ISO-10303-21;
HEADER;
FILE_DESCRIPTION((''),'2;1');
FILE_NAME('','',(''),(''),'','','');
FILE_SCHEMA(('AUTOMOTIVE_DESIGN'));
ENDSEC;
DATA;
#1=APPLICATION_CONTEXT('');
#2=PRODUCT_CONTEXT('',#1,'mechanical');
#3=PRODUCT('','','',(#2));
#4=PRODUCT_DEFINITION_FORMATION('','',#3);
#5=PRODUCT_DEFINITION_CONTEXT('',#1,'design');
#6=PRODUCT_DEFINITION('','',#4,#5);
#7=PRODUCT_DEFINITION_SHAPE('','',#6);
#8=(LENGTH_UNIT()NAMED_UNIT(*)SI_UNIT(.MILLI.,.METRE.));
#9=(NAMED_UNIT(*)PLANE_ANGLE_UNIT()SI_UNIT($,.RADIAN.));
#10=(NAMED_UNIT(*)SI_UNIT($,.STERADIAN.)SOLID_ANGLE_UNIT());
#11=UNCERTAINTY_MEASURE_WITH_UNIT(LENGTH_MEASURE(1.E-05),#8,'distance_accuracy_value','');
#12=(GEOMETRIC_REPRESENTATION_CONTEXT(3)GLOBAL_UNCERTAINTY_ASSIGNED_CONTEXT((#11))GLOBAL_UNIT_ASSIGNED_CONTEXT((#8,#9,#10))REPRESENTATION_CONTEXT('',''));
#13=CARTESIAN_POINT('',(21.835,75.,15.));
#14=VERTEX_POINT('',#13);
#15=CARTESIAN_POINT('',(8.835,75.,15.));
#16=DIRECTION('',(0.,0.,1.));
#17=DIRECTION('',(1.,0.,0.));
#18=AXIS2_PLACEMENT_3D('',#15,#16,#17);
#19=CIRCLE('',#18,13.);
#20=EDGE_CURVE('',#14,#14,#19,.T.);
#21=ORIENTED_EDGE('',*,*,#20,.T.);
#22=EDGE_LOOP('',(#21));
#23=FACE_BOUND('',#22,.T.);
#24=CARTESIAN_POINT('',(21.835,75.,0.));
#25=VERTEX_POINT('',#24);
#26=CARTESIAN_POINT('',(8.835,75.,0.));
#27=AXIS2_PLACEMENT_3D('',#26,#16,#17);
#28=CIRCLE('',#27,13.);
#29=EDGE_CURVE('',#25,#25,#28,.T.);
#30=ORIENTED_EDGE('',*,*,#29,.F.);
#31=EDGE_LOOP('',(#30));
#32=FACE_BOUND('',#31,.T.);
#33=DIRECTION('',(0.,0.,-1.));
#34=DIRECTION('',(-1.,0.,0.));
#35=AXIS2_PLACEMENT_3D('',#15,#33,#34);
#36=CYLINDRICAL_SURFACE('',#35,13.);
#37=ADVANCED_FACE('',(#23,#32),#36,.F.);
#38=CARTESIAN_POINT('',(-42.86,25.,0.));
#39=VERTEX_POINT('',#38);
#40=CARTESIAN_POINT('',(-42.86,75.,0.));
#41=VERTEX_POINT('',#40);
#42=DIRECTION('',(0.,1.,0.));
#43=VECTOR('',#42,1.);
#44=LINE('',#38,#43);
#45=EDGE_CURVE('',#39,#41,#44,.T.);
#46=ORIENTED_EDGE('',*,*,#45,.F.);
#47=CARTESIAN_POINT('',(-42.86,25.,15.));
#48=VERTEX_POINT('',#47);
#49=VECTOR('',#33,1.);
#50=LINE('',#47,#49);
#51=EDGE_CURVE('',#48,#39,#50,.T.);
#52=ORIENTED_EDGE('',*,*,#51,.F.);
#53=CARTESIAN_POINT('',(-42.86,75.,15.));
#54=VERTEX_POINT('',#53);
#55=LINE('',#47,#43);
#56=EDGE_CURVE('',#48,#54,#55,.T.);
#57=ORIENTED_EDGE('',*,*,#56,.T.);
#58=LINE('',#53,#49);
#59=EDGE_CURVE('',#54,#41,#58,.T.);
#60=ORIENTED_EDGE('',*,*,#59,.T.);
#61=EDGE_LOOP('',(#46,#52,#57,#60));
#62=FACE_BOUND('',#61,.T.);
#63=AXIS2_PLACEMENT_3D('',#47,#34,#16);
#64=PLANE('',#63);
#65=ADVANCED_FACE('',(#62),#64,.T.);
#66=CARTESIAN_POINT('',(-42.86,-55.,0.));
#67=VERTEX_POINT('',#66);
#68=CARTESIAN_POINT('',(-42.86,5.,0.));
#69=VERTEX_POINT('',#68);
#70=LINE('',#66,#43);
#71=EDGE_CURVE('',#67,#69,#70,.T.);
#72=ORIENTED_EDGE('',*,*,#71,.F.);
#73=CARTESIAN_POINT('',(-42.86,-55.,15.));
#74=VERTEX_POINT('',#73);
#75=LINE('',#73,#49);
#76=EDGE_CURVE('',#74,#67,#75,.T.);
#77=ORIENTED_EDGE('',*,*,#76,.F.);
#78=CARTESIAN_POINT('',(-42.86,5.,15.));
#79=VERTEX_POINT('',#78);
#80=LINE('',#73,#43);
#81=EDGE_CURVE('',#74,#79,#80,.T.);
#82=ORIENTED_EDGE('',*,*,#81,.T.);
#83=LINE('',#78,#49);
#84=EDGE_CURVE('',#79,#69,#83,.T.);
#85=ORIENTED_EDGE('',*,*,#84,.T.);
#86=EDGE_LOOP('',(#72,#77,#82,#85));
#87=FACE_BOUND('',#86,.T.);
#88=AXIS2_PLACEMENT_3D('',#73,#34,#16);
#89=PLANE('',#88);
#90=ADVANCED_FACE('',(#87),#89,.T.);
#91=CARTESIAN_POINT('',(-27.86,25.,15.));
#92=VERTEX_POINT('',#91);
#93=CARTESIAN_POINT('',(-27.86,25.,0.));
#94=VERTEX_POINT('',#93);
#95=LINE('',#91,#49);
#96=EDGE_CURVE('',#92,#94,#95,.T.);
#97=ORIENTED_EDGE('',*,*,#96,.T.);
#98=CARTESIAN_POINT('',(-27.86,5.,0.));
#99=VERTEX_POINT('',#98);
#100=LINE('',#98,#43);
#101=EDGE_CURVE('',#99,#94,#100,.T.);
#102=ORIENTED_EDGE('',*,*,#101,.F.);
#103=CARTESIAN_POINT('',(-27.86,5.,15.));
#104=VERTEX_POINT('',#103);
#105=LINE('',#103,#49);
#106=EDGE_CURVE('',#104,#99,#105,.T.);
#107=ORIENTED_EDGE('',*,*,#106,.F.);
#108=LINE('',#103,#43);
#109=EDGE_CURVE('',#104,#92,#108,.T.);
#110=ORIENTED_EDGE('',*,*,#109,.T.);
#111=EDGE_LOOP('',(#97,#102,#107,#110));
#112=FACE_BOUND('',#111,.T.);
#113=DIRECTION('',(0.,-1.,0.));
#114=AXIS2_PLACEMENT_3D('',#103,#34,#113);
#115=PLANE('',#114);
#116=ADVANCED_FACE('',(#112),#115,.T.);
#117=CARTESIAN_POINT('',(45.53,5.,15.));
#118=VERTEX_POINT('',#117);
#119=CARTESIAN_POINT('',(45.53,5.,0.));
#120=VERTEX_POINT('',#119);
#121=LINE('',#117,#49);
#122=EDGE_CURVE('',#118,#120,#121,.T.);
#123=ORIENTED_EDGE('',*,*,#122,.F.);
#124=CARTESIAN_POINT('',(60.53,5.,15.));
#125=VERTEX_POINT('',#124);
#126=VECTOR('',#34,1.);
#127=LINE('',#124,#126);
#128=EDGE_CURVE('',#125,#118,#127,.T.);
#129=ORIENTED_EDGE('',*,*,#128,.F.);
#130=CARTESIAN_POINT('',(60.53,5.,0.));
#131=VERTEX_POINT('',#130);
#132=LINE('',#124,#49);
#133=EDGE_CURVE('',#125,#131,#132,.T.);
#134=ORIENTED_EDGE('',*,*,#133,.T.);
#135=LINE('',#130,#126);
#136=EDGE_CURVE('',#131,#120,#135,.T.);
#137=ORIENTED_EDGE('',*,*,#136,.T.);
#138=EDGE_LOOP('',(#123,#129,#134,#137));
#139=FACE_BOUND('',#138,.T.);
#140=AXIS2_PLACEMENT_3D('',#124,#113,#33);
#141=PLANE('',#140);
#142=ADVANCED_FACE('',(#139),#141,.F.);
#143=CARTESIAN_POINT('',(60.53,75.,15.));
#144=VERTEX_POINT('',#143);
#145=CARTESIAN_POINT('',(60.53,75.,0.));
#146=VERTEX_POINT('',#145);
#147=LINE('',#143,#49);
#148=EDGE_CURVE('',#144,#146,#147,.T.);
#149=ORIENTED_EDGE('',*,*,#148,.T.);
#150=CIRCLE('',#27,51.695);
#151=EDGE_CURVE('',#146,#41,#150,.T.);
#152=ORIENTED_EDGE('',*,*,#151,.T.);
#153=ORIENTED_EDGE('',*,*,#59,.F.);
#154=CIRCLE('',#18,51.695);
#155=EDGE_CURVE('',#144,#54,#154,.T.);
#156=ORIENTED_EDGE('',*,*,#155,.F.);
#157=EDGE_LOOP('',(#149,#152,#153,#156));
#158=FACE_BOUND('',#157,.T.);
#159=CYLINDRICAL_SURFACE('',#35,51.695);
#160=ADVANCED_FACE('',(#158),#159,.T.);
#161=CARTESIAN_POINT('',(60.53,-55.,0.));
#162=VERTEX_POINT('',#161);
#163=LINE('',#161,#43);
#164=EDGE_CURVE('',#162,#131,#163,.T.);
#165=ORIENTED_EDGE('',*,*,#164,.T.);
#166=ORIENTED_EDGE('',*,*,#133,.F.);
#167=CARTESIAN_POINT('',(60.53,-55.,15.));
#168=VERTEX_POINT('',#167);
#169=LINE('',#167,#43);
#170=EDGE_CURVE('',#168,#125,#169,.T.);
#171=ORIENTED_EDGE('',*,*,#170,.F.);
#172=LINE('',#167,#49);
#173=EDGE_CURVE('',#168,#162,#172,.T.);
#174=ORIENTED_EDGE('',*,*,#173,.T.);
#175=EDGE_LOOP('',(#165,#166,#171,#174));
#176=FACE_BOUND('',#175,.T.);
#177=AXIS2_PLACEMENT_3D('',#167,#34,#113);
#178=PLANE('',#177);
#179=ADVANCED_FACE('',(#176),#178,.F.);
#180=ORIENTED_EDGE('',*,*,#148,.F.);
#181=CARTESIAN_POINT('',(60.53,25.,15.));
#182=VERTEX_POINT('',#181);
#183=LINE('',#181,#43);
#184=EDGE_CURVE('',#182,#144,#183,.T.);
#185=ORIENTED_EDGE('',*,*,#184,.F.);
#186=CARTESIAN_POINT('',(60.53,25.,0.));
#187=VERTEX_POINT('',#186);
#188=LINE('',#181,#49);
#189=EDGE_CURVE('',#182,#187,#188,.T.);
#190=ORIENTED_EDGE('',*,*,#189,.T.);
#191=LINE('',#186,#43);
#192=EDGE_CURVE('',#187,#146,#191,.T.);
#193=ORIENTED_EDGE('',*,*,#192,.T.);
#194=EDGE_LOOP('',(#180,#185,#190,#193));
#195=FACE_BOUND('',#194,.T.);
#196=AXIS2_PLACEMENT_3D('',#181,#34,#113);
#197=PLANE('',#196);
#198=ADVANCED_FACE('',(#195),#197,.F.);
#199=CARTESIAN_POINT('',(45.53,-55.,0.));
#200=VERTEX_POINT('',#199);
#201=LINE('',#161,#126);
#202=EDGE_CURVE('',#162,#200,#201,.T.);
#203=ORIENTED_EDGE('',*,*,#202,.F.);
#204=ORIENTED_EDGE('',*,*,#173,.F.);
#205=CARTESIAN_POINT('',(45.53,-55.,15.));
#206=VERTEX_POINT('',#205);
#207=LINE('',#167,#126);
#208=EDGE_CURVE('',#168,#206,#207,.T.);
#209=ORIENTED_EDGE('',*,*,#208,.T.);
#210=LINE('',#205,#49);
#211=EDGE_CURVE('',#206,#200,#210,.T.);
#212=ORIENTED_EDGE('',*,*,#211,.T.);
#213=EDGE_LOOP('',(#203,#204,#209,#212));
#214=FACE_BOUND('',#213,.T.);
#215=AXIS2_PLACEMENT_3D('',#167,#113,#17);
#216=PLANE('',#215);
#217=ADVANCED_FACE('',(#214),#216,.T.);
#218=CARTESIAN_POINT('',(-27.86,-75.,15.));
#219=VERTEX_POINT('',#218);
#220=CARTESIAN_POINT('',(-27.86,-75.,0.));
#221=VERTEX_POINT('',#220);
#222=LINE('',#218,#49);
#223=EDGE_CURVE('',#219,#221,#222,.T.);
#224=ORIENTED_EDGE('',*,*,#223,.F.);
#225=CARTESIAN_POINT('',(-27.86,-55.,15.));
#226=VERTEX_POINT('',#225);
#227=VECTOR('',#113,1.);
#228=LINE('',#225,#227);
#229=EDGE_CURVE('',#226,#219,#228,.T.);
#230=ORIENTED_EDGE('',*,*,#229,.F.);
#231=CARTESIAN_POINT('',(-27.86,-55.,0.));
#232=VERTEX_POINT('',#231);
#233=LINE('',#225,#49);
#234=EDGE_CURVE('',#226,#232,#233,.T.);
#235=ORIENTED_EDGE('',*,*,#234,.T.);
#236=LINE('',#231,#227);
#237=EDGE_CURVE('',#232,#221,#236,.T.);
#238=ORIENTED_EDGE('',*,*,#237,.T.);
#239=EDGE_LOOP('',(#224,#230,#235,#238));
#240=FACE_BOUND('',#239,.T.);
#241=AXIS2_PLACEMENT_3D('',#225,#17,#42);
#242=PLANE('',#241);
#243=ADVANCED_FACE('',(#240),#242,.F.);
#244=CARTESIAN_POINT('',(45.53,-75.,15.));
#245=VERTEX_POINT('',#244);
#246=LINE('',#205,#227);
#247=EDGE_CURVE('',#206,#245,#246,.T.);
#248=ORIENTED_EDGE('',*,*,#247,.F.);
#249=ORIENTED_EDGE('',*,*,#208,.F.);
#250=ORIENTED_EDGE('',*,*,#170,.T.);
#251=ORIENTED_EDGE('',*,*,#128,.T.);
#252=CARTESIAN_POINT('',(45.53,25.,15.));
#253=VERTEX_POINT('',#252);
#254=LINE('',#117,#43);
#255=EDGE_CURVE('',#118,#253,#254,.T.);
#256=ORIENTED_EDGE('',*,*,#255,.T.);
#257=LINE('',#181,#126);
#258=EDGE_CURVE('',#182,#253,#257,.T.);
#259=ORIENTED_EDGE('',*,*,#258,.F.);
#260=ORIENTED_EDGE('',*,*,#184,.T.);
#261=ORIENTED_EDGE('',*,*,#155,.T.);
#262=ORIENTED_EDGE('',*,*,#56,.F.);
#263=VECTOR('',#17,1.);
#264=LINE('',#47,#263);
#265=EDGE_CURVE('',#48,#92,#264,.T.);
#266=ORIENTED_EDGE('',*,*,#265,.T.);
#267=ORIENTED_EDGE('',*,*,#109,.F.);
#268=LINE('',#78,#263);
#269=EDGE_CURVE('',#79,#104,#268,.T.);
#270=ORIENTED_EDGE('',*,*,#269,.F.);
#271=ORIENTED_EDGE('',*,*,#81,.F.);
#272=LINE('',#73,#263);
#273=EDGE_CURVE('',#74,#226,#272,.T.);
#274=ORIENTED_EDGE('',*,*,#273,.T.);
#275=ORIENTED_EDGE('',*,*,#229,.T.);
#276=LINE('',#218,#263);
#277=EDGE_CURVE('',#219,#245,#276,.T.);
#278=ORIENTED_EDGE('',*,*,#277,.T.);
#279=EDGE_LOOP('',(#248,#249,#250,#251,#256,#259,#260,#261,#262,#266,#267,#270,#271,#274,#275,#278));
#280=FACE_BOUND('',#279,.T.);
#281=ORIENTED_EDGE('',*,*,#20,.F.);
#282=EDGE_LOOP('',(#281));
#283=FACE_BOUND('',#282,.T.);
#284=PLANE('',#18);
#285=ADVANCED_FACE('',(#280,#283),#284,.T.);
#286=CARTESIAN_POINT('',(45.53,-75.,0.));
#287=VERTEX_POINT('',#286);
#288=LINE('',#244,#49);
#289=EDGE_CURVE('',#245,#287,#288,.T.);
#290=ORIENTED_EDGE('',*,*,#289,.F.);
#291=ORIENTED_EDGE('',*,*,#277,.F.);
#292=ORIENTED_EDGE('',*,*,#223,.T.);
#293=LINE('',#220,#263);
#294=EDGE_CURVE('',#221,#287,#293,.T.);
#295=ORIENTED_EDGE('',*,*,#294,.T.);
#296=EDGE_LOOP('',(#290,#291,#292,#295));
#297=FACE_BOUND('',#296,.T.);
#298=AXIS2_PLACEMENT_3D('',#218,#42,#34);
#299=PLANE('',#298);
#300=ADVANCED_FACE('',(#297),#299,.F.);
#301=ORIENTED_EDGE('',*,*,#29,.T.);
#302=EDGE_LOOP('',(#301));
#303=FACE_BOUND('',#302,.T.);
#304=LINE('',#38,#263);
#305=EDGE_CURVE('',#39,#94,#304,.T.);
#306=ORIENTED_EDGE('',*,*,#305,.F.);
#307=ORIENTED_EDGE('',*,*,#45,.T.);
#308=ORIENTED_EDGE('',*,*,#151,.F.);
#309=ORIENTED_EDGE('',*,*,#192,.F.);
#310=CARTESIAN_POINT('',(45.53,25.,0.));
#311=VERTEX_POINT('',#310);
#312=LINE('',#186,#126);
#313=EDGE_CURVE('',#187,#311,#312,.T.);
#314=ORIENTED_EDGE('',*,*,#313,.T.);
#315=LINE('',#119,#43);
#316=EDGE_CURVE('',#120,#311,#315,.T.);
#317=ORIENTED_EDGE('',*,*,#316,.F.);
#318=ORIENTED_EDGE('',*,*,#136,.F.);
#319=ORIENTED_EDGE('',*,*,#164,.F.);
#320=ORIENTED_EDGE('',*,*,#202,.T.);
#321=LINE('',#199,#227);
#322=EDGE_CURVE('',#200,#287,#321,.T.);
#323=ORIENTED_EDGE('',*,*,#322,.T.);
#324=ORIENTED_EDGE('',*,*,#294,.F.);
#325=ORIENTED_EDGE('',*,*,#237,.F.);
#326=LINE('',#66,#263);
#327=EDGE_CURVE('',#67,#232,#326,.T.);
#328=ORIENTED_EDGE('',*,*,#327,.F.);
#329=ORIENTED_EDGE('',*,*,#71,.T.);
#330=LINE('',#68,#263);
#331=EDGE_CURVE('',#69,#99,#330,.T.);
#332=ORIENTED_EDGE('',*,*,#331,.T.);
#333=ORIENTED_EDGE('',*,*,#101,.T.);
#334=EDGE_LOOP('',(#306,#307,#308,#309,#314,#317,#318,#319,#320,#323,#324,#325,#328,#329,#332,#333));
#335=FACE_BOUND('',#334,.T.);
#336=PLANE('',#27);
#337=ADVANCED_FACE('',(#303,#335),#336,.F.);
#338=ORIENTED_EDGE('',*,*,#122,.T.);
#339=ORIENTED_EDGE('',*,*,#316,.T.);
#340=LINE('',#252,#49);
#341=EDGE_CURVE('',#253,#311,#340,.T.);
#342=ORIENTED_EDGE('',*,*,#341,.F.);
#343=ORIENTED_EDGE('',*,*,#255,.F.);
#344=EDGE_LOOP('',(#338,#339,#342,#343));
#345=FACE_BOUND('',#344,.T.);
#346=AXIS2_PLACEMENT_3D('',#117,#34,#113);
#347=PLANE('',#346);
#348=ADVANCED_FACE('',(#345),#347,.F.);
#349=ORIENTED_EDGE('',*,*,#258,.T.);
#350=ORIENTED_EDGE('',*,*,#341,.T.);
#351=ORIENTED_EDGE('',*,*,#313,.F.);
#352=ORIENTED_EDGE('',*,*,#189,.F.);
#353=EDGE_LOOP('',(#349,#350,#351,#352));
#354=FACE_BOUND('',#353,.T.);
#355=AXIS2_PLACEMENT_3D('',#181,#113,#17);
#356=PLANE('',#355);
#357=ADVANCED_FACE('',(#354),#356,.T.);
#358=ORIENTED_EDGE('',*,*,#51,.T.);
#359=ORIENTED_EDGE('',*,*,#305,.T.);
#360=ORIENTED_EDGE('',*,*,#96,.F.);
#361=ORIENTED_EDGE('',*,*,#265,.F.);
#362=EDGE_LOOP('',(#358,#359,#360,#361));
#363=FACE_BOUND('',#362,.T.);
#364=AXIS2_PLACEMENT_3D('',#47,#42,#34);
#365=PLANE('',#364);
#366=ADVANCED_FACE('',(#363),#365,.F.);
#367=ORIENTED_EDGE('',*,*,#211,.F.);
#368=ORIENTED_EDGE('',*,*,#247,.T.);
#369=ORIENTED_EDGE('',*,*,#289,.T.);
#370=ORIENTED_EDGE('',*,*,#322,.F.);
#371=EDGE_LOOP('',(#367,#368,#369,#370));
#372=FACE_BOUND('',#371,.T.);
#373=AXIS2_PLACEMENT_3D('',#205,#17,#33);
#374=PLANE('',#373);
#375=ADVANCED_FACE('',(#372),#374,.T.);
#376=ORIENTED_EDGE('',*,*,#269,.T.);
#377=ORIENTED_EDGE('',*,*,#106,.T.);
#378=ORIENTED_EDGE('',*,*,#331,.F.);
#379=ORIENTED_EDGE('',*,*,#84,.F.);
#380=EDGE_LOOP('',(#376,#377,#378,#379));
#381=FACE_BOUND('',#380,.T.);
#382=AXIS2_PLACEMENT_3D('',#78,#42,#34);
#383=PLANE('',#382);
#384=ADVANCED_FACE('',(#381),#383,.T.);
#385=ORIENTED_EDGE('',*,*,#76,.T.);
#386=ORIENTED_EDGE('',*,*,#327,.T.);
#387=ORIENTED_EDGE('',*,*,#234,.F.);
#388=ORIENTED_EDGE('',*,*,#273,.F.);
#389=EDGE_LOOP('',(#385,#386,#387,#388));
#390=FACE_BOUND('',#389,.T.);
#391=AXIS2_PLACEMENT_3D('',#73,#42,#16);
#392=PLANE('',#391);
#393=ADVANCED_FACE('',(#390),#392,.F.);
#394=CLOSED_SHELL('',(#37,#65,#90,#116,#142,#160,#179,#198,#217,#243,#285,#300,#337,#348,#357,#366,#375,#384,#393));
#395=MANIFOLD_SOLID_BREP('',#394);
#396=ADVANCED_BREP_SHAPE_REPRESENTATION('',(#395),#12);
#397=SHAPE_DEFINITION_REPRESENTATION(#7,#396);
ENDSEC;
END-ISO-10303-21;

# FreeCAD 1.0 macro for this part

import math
import FreeCAD as App
import Part
import Sketcher
Q = App.Units.Quantity

doc = App.newDocument("Part")
params = doc.addObject("Spreadsheet::Sheet", "Params")
for row, (alias, value) in enumerate([
    ("sketch1_diameter", "26 mm"),
    ("sketch1_width", "15 mm"),
    ("sketch1_height", "20 mm"),
    ("sketch1_height2", "60 mm"),
    ("sketch1_height3", "50 mm"),
    ("pad1_length", "15 mm"),
], start=1):
    params.set(f"A{row}", alias)
    params.set(f"B{row}", "=" + value)
    params.setAlias(f"B{row}", alias)

body = doc.addObject("PartDesign::Body", "Body")

# Sketch on XY plane
sketch1 = doc.addObject("Sketcher::SketchObject", "Sketch")
body.addObject(sketch1)
sketch1.AttachmentSupport = (doc.XY_Plane, [""])
sketch1.MapMode = "FlatFace"
sketch1.addGeometry(Part.LineSegment(App.Vector(-28, -55, 0), App.Vector(-28, -75, 0)), False)
sketch1.addGeometry(Part.LineSegment(App.Vector(-28, -75, 0), App.Vector(46, -75, 0)), False)
sketch1.addGeometry(Part.LineSegment(App.Vector(46, -75, 0), App.Vector(46, -55, 0)), False)
sketch1.addGeometry(Part.LineSegment(App.Vector(46, -55, 0), App.Vector(61, -55, 0)), False)
sketch1.addGeometry(Part.LineSegment(App.Vector(61, -55, 0), App.Vector(61, 5, 0)), False)
sketch1.addGeometry(Part.LineSegment(App.Vector(61, 5, 0), App.Vector(46, 5, 0)), False)
sketch1.addGeometry(Part.LineSegment(App.Vector(46, 5, 0), App.Vector(46, 25, 0)), False)
sketch1.addGeometry(Part.LineSegment(App.Vector(46, 25, 0), App.Vector(61, 25, 0)), False)
sketch1.addGeometry(Part.LineSegment(App.Vector(61, 25, 0), App.Vector(61, 75, 0)), False)
sketch1.addGeometry(Part.ArcOfCircle(Part.Circle(App.Vector(9, 75, 0), App.Vector(0, 0, 1), 52), math.radians(0), math.radians(180)), False)
sketch1.addGeometry(Part.LineSegment(App.Vector(-43, 75, 0), App.Vector(-43, 25, 0)), False)
sketch1.addGeometry(Part.LineSegment(App.Vector(-43, 25, 0), App.Vector(-28, 25, 0)), False)
sketch1.addGeometry(Part.LineSegment(App.Vector(-28, 25, 0), App.Vector(-28, 5, 0)), False)
sketch1.addGeometry(Part.LineSegment(App.Vector(-28, 5, 0), App.Vector(-43, 5, 0)), False)
sketch1.addGeometry(Part.LineSegment(App.Vector(-43, 5, 0), App.Vector(-43, -55, 0)), False)
sketch1.addGeometry(Part.LineSegment(App.Vector(-43, -55, 0), App.Vector(-28, -55, 0)), False)
sketch1.addGeometry(Part.Circle(App.Vector(9, 75, 0), App.Vector(0, 0, 1), 13), False)
sketch1.addConstraint(Sketcher.Constraint("Coincident", 0, 2, 1, 1))
sketch1.addConstraint(Sketcher.Constraint("Coincident", 1, 2, 2, 1))
sketch1.addConstraint(Sketcher.Constraint("Coincident", 2, 2, 3, 1))
sketch1.addConstraint(Sketcher.Constraint("Coincident", 3, 2, 4, 1))
sketch1.addConstraint(Sketcher.Constraint("Coincident", 4, 2, 5, 1))
sketch1.addConstraint(Sketcher.Constraint("Coincident", 5, 2, 6, 1))
sketch1.addConstraint(Sketcher.Constraint("Coincident", 6, 2, 7, 1))
sketch1.addConstraint(Sketcher.Constraint("Coincident", 7, 2, 8, 1))
sketch1.addConstraint(Sketcher.Constraint("Tangent", 8, 2, 9, 1))
sketch1.addConstraint(Sketcher.Constraint("Tangent", 9, 2, 10, 1))
sketch1.addConstraint(Sketcher.Constraint("Coincident", 10, 2, 11, 1))
sketch1.addConstraint(Sketcher.Constraint("Coincident", 11, 2, 12, 1))
sketch1.addConstraint(Sketcher.Constraint("Coincident", 12, 2, 13, 1))
sketch1.addConstraint(Sketcher.Constraint("Coincident", 13, 2, 14, 1))
sketch1.addConstraint(Sketcher.Constraint("Coincident", 14, 2, 15, 1))
sketch1.addConstraint(Sketcher.Constraint("Coincident", 15, 2, 0, 1))
sketch1.addConstraint(Sketcher.Constraint("Vertical", 0))
sketch1.addConstraint(Sketcher.Constraint("Horizontal", 1))
sketch1.addConstraint(Sketcher.Constraint("Vertical", 2))
sketch1.addConstraint(Sketcher.Constraint("Horizontal", 3))
sketch1.addConstraint(Sketcher.Constraint("Vertical", 4))
sketch1.addConstraint(Sketcher.Constraint("Horizontal", 5))
sketch1.addConstraint(Sketcher.Constraint("Vertical", 6))
sketch1.addConstraint(Sketcher.Constraint("Horizontal", 7))
sketch1.addConstraint(Sketcher.Constraint("Vertical", 8))
sketch1.addConstraint(Sketcher.Constraint("Vertical", 10))
sketch1.addConstraint(Sketcher.Constraint("Horizontal", 11))
sketch1.addConstraint(Sketcher.Constraint("Vertical", 12))
sketch1.addConstraint(Sketcher.Constraint("Horizontal", 13))
sketch1.addConstraint(Sketcher.Constraint("Vertical", 14))
sketch1.addConstraint(Sketcher.Constraint("Horizontal", 15))
sketch1.addConstraint(Sketcher.Constraint("Coincident", 16, 3, 9, 3))
sketch1.addConstraint(Sketcher.Constraint("Horizontal", 7, 2, 10, 2))
sketch1.addConstraint(Sketcher.Constraint("Horizontal", 5, 2, 12, 2))
sketch1.addConstraint(Sketcher.Constraint("Horizontal", 3, 2, 14, 2))
sketch1.addConstraint(Sketcher.Constraint("Vertical", 2, 2, 5, 2))
sketch1.addConstraint(Sketcher.Constraint("Vertical", 4, 2, 7, 2))
sketch1.addConstraint(Sketcher.Constraint("Vertical", 0, 2, 11, 2))
sketch1.addConstraint(Sketcher.Constraint("Vertical", 10, 2, 13, 2))
sketch1.addConstraint(Sketcher.Constraint("Equal", 7, 11))
sketch1.addConstraint(Sketcher.Constraint("Equal", 2, 6))
sketch1.addConstraint(Sketcher.Constraint("Diameter", 16, Q("26 mm")))
sketch1.addConstraint(Sketcher.Constraint("DistanceX", 3, 1, 3, 2, Q("15 mm")))
sketch1.addConstraint(Sketcher.Constraint("DistanceY", 0, 2, 0, 1, Q("20 mm")))
sketch1.addConstraint(Sketcher.Constraint("DistanceY", 4, 1, 4, 2, Q("60 mm")))
sketch1.addConstraint(Sketcher.Constraint("DistanceY", 8, 1, 8, 2, Q("50 mm")))
sketch1.addConstraint(Sketcher.Constraint("DistanceY", -1, 1, 9, 3, Q("75 mm")))
sketch1.addConstraint(Sketcher.Constraint("Radius", 9, Q("51.695 mm")))
sketch1.addConstraint(Sketcher.Constraint("DistanceX", 0, 2, -1, 1, Q("27.86 mm")))
sketch1.setExpression("Constraints[41]", "Params.sketch1_diameter")
sketch1.setExpression("Constraints[42]", "Params.sketch1_width")
sketch1.setExpression("Constraints[43]", "Params.sketch1_height")
sketch1.setExpression("Constraints[44]", "Params.sketch1_height2")
sketch1.setExpression("Constraints[45]", "Params.sketch1_height3")
pad1 = doc.addObject("PartDesign::Pad", "Pad")
body.addObject(pad1)
pad1.Profile = sketch1
pad1.setExpression("Length", "Params.pad1_length")

doc.recompute()
